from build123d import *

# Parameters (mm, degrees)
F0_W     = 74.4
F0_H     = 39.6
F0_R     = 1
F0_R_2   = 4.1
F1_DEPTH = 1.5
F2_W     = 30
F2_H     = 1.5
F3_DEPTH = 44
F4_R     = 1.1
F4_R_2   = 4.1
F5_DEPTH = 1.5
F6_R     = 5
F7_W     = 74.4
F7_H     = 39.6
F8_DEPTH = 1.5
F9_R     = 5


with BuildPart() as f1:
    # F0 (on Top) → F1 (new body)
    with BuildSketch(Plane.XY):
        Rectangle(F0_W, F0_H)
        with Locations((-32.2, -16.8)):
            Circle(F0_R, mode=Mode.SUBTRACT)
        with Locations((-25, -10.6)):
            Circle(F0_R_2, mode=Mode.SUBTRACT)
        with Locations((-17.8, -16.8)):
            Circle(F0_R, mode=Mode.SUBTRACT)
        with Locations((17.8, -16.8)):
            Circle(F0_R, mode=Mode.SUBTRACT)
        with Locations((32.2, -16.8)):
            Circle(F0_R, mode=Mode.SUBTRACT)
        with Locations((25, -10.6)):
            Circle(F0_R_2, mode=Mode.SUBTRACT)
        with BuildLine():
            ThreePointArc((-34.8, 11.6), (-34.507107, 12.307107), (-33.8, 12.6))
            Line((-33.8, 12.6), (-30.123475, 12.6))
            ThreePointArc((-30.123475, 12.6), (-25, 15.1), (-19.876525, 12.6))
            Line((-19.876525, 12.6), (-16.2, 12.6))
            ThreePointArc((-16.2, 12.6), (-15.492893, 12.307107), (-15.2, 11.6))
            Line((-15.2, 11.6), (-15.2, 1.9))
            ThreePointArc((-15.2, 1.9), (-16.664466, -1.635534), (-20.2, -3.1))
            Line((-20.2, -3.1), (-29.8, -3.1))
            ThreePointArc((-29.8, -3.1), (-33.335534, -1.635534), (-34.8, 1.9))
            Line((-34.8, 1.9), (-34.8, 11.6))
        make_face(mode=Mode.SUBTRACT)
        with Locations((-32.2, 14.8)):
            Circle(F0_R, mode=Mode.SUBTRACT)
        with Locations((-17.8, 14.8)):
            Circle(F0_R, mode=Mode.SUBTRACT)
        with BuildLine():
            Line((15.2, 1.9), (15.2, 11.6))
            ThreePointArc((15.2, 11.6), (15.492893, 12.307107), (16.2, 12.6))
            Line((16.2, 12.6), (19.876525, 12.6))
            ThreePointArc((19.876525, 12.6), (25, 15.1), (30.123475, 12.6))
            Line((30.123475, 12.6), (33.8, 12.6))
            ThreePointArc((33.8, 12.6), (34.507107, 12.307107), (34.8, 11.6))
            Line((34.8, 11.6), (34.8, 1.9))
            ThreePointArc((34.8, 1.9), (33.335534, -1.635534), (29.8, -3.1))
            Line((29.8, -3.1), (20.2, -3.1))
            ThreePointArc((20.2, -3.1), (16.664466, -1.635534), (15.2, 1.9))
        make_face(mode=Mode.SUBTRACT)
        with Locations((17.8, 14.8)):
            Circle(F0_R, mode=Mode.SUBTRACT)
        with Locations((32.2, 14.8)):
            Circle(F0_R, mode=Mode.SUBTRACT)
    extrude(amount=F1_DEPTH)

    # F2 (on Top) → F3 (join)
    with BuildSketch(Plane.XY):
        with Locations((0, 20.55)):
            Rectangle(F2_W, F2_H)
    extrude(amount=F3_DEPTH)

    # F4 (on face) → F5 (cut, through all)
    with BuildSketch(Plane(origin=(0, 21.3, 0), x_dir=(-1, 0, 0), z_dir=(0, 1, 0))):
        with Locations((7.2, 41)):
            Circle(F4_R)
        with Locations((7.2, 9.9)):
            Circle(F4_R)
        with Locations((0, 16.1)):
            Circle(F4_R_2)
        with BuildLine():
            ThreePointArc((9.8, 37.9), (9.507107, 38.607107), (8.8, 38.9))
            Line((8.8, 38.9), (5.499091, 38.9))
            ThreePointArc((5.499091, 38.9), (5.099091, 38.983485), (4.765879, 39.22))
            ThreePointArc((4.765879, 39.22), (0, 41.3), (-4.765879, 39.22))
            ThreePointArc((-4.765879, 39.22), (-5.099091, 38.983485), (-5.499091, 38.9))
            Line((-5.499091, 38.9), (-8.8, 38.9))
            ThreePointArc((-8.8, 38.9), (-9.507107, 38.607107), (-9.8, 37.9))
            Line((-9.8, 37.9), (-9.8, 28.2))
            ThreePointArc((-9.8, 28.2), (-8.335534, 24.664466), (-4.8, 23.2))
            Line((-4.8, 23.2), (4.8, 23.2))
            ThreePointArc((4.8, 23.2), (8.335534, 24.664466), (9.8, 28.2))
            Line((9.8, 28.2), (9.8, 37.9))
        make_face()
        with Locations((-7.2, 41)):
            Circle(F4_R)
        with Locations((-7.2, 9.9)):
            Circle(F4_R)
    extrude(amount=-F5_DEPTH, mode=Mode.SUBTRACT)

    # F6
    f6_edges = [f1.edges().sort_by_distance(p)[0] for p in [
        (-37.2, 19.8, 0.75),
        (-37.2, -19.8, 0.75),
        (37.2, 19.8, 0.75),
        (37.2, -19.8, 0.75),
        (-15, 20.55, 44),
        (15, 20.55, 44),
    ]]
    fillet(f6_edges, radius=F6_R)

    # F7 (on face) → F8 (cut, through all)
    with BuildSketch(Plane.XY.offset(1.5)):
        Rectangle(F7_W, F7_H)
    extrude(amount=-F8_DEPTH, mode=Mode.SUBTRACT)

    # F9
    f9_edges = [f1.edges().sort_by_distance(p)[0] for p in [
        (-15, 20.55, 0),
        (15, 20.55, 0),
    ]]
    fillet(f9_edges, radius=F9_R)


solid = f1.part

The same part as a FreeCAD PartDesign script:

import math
import FreeCAD as App
import Part
import Sketcher

V = App.Vector


def edges_at(feature, points):
    """Names of the edges that pass closest to the given points."""
    edges = feature.Shape.Edges
    near = lambda p: min(range(len(edges)), key=lambda i: edges[i].distToShape(Part.Vertex(*p))[0])
    return sorted({f"Edge{near(p) + 1}" for p in points})


def add_polygon(sketch, points):
    """Adds a closed chain of lines whose ends are joined by coincident constraints."""
    first, n = sketch.GeometryCount, len(points)
    for a, b in zip(points, points[1:] + points[:1]):
        sketch.addGeometry(Part.LineSegment(App.Vector(*a, 0), App.Vector(*b, 0)), False)
    for i in range(n):
        sketch.addConstraint(Sketcher.Constraint("Coincident", first + i, 2, first + (i + 1) % n, 1))

doc = App.newDocument("Part")
body = doc.addObject("PartDesign::Body", "Body")

# Sketch on XY plane
sketch1 = doc.addObject("Sketcher::SketchObject", "Sketch")
body.addObject(sketch1)
sketch1.AttachmentSupport = (doc.XY_Plane, [""])
sketch1.MapMode = "FlatFace"
add_polygon(sketch1, [(-37.2, 19.8), (-37.2, -19.8), (37.2, -19.8), (37.2, 19.8)])  # lines 0-3
sketch1.addGeometry(Part.Circle(V(-32.2, -16.8, 0), V(0, 0, 1), 1), False)  # 4
sketch1.addGeometry(Part.Circle(V(-17.8, -16.8, 0), V(0, 0, 1), 1), False)  # 5
sketch1.addGeometry(Part.Circle(V(-25, -10.6, 0), V(0, 0, 1), 4.1), False)  # 6
sketch1.addGeometry(Part.Circle(V(17.8, -16.8, 0), V(0, 0, 1), 1), False)  # 7
sketch1.addGeometry(Part.Circle(V(32.2, -16.8, 0), V(0, 0, 1), 1), False)  # 8
sketch1.addGeometry(Part.Circle(V(25, -10.6, 0), V(0, 0, 1), 4.1), False)  # 9
sketch1.addGeometry(Part.LineSegment(V(-34.8, 1.9, 0), V(-34.8, 11.6, 0)), False)  # 10
sketch1.addGeometry(Part.ArcOfCircle(Part.Circle(V(-33.800001, 11.600001, 0), V(0, 0, 1), 0.999999), math.radians(89.999957), math.radians(180.000043)), False)  # 11
sketch1.addGeometry(Part.LineSegment(V(-33.8, 12.6, 0), V(-30.123475, 12.6, 0)), False)  # 12
sketch1.addGeometry(Part.ArcOfCircle(Part.Circle(V(-25, 8.600001, 0), V(0, 0, 1), 6.499999), math.radians(37.979869), math.radians(142.020131)), False)  # 13
sketch1.addGeometry(Part.LineSegment(V(-19.876525, 12.6, 0), V(-16.2, 12.6, 0)), False)  # 14
sketch1.addGeometry(Part.ArcOfCircle(Part.Circle(V(-16.199999, 11.600001, 0), V(0, 0, 1), 0.999999), math.radians(-0.000043), math.radians(90.000043)), False)  # 15
sketch1.addGeometry(Part.LineSegment(V(-15.2, 11.6, 0), V(-15.2, 1.9, 0)), False)  # 16
sketch1.addGeometry(Part.ArcOfCircle(Part.Circle(V(-20.2, 1.9, 0), V(0, 0, 1), 5), math.radians(-90.000004), math.radians(0.000004)), False)  # 17
sketch1.addGeometry(Part.LineSegment(V(-20.2, -3.1, 0), V(-29.8, -3.1, 0)), False)  # 18
sketch1.addGeometry(Part.ArcOfCircle(Part.Circle(V(-29.8, 1.9, 0), V(0, 0, 1), 5), math.radians(179.999996), math.radians(270.000004)), False)  # 19
sketch1.addGeometry(Part.Circle(V(-32.2, 14.8, 0), V(0, 0, 1), 1), False)  # 20
sketch1.addGeometry(Part.Circle(V(-17.8, 14.8, 0), V(0, 0, 1), 1), False)  # 21
sketch1.addGeometry(Part.ArcOfCircle(Part.Circle(V(20.2, 1.9, 0), V(0, 0, 1), 5), math.radians(179.999996), math.radians(270.000004)), False)  # 22
sketch1.addGeometry(Part.LineSegment(V(15.2, 1.9, 0), V(15.2, 11.6, 0)), False)  # 23
sketch1.addGeometry(Part.ArcOfCircle(Part.Circle(V(16.199999, 11.600001, 0), V(0, 0, 1), 0.999999), math.radians(89.999957), math.radians(180.000043)), False)  # 24
sketch1.addGeometry(Part.LineSegment(V(16.2, 12.6, 0), V(19.876525, 12.6, 0)), False)  # 25
sketch1.addGeometry(Part.ArcOfCircle(Part.Circle(V(25, 8.600001, 0), V(0, 0, 1), 6.499999), math.radians(37.979869), math.radians(142.020131)), False)  # 26
sketch1.addGeometry(Part.LineSegment(V(30.123475, 12.6, 0), V(33.8, 12.6, 0)), False)  # 27
sketch1.addGeometry(Part.ArcOfCircle(Part.Circle(V(33.800001, 11.600001, 0), V(0, 0, 1), 0.999999), math.radians(-0.000043), math.radians(90.000043)), False)  # 28
sketch1.addGeometry(Part.LineSegment(V(34.8, 11.6, 0), V(34.8, 1.9, 0)), False)  # 29
sketch1.addGeometry(Part.ArcOfCircle(Part.Circle(V(29.8, 1.9, 0), V(0, 0, 1), 5), math.radians(-90.000004), math.radians(0.000004)), False)  # 30
sketch1.addGeometry(Part.LineSegment(V(29.8, -3.1, 0), V(20.2, -3.1, 0)), False)  # 31
sketch1.addGeometry(Part.Circle(V(17.8, 14.8, 0), V(0, 0, 1), 1), False)  # 32
sketch1.addGeometry(Part.Circle(V(32.2, 14.8, 0), V(0, 0, 1), 1), False)  # 33
sketch1.addConstraint([
    Sketcher.Constraint("Tangent", 10, 2, 11, 2),
    Sketcher.Constraint("Tangent", 11, 1, 12, 1),
    Sketcher.Constraint("Coincident", 12, 2, 13, 2),
    Sketcher.Constraint("Coincident", 13, 1, 14, 1),
    Sketcher.Constraint("Tangent", 14, 2, 15, 2),
    Sketcher.Constraint("Tangent", 15, 1, 16, 1),
    Sketcher.Constraint("Tangent", 16, 2, 17, 2),
    Sketcher.Constraint("Tangent", 17, 1, 18, 1),
    Sketcher.Constraint("Tangent", 18, 2, 19, 2),
    Sketcher.Constraint("Tangent", 19, 1, 10, 1),
    Sketcher.Constraint("Tangent", 22, 1, 23, 1),
    Sketcher.Constraint("Tangent", 23, 2, 24, 2),
    Sketcher.Constraint("Tangent", 24, 1, 25, 1),
    Sketcher.Constraint("Coincident", 25, 2, 26, 2),
    Sketcher.Constraint("Coincident", 26, 1, 27, 1),
    Sketcher.Constraint("Tangent", 27, 2, 28, 2),
    Sketcher.Constraint("Tangent", 28, 1, 29, 1),
    Sketcher.Constraint("Tangent", 29, 2, 30, 2),
    Sketcher.Constraint("Tangent", 30, 1, 31, 1),
    Sketcher.Constraint("Tangent", 31, 2, 22, 2),
    Sketcher.Constraint("Vertical", 0),
    Sketcher.Constraint("Horizontal", 1),
    Sketcher.Constraint("Vertical", 2),
    Sketcher.Constraint("Horizontal", 3),
    Sketcher.Constraint("Vertical", 10),
    Sketcher.Constraint("Horizontal", 12),
    Sketcher.Constraint("Horizontal", 14),
    Sketcher.Constraint("Vertical", 16),
    Sketcher.Constraint("Horizontal", 18),
    Sketcher.Constraint("Vertical", 23),
    Sketcher.Constraint("Horizontal", 25),
    Sketcher.Constraint("Horizontal", 27),
    Sketcher.Constraint("Vertical", 29),
    Sketcher.Constraint("Horizontal", 31),
    Sketcher.Constraint("Equal", 4, 5),
    Sketcher.Constraint("Equal", 5, 7),
    Sketcher.Constraint("Equal", 7, 8),
    Sketcher.Constraint("Equal", 6, 9),
    Sketcher.Constraint("Equal", 8, 11),
    Sketcher.Constraint("Equal", 11, 15),
    Sketcher.Constraint("Equal", 17, 19),
    Sketcher.Constraint("Equal", 15, 20),
    Sketcher.Constraint("Equal", 20, 21),
    Sketcher.Constraint("Equal", 19, 22),
    Sketcher.Constraint("Equal", 21, 24),
    Sketcher.Constraint("Equal", 13, 26),
    Sketcher.Constraint("Equal", 24, 28),
    Sketcher.Constraint("Equal", 22, 30),
    Sketcher.Constraint("Equal", 28, 32),
    Sketcher.Constraint("Equal", 32, 33),
    Sketcher.Constraint("Symmetric", 0, 2, 2, 2, -1, 1),
    Sketcher.Constraint("Symmetric", 5, 3, 7, 3, -2),
    Sketcher.Constraint("Symmetric", 4, 3, 8, 3, -2),
    Sketcher.Constraint("Symmetric", 6, 3, 9, 3, -2),
    Sketcher.Constraint("Symmetric", 17, 3, 22, 3, -2),
    Sketcher.Constraint("Symmetric", 13, 3, 26, 3, -2),
    Sketcher.Constraint("Symmetric", 11, 3, 28, 3, -2),
    Sketcher.Constraint("Symmetric", 21, 3, 32, 3, -2),
    Sketcher.Constraint("Symmetric", 20, 3, 33, 3, -2),
    Sketcher.Constraint("Horizontal", 4, 3, 5, 3),
    Sketcher.Constraint("Horizontal", 11, 3, 15, 3),
    Sketcher.Constraint("Horizontal", 20, 3, 21, 3),
    Sketcher.Constraint("Horizontal", 15, 3, 24, 3),
    Sketcher.Constraint("Vertical", 6, 3, 13, 3),
    Sketcher.Constraint("Vertical", 4, 3, 20, 3),
    Sketcher.Constraint("Vertical", 5, 3, 21, 3),
    Sketcher.Constraint("Equal", 12, 14),
    Sketcher.Constraint("Diameter", 4, 2.0),
    Sketcher.Constraint("Radius", 17, 5.0),
    Sketcher.Constraint("Diameter", 6, 8.2),
    Sketcher.Constraint("Radius", 13, 6.499999),
    Sketcher.Constraint("DistanceX", 1, 1, 1, 2, 74.4),
    Sketcher.Constraint("DistanceX", 18, 2, 18, 1, 9.6),
    Sketcher.Constraint("DistanceY", 0, 2, 0, 1, 39.6),
    Sketcher.Constraint("DistanceY", 10, 1, 10, 2, 9.7),
    Sketcher.Constraint("DistanceX", 6, 3, -1, 1, 25.0),
    Sketcher.Constraint("DistanceX", 4, 3, 7, 3, 50.0),
    Sketcher.Constraint("DistanceX", 11, 3, 5, 3, 16.000001),
    Sketcher.Constraint("DistanceY", 13, 3, 11, 3, 3.0),
    Sketcher.Constraint("DistanceY", 0, 2, 4, 3, 3.0),
    Sketcher.Constraint("DistanceY", 33, 3, 2, 2, 5.0),
    Sketcher.Constraint("DistanceY", 6, 3, -1, 1, 10.6),
    Sketcher.Constraint("DistanceY", -1, 1, 11, 3, 11.600001),
])
pad1 = doc.addObject("PartDesign::Pad", "Pad")
body.addObject(pad1)
pad1.Profile = sketch1
pad1.Length = 1.5

# Sketch on XY plane
sketch2 = doc.addObject("Sketcher::SketchObject", "Sketch001")
body.addObject(sketch2)
sketch2.AttachmentSupport = (doc.XY_Plane, [""])
sketch2.MapMode = "FlatFace"
add_polygon(sketch2, [(-15, 21.3), (-15, 19.8), (15, 19.8), (15, 21.3)])  # lines 0-3
sketch2.addConstraint([
    Sketcher.Constraint("Vertical", 0),
    Sketcher.Constraint("Horizontal", 1),
    Sketcher.Constraint("Vertical", 2),
    Sketcher.Constraint("Horizontal", 3),
    Sketcher.Constraint("DistanceX", 1, 1, 1, 2, 30.0),
    Sketcher.Constraint("DistanceY", 0, 2, 0, 1, 1.5),
    Sketcher.Constraint("DistanceX", 0, 2, -1, 1, 15.0),
    Sketcher.Constraint("DistanceY", -1, 1, 0, 2, 19.8),
])
pad2 = doc.addObject("PartDesign::Pad", "Pad001")
body.addObject(pad2)
pad2.Profile = sketch2
pad2.Length = 44

# Sketch on XZ plane
sketch3 = doc.addObject("Sketcher::SketchObject", "Sketch002")
body.addObject(sketch3)
sketch3.AttachmentSupport = (doc.XZ_Plane, [""])
sketch3.MapMode = "FlatFace"
sketch3.AttachmentOffset = App.Placement(V(0, 0, -21.3), App.Rotation())
sketch3.addGeometry([
    Part.Circle(V(-7.2, 41, 0), V(0, 0, 1), 1.1),  # 0
    Part.Circle(V(-7.2, 9.9, 0), V(0, 0, 1), 1.1),  # 1
    Part.Circle(V(0, 16.1, 0), V(0, 0, 1), 4.1),  # 2
    Part.ArcOfCircle(Part.Circle(V(-8.800001, 37.900001, 0), V(0, 0, 1), 0.999999), math.radians(89.999957), math.radians(180.000043)),  # 3
    Part.LineSegment(V(-8.8, 38.9, 0), V(-5.499091, 38.9, 0)),  # 4
    Part.ArcOfCircle(Part.Circle(V(-5.499092, 39.900001, 0), V(0, 0, 1), 1.000001), math.radians(-89.999971), math.radians(-42.843666)),  # 5
    Part.ArcOfCircle(Part.Circle(V(0, 34.799999, 0), V(0, 0, 1), 6.500001), math.radians(42.843645), math.radians(137.156355)),  # 6
    Part.ArcOfCircle(Part.Circle(V(5.499092, 39.900001, 0), V(0, 0, 1), 1.000001), math.radians(-137.156334), math.radians(-90.000029)),  # 7
    Part.LineSegment(V(5.499091, 38.9, 0), V(8.8, 38.9, 0)),  # 8
    Part.ArcOfCircle(Part.Circle(V(8.800001, 37.900001, 0), V(0, 0, 1), 0.999999), math.radians(-0.000043), math.radians(90.000043)),  # 9
    Part.LineSegment(V(9.8, 37.9, 0), V(9.8, 28.2, 0)),  # 10
    Part.ArcOfCircle(Part.Circle(V(4.8, 28.2, 0), V(0, 0, 1), 5), math.radians(-90.000004), math.radians(0.000004)),  # 11
    Part.LineSegment(V(4.8, 23.2, 0), V(-4.8, 23.2, 0)),  # 12
    Part.ArcOfCircle(Part.Circle(V(-4.8, 28.2, 0), V(0, 0, 1), 5), math.radians(179.999996), math.radians(270.000004)),  # 13
    Part.LineSegment(V(-9.8, 28.2, 0), V(-9.8, 37.9, 0)),  # 14
    Part.Circle(V(7.2, 41, 0), V(0, 0, 1), 1.1),  # 15
    Part.Circle(V(7.2, 9.9, 0), V(0, 0, 1), 1.1),  # 16
], False)
sketch3.addConstraint([
    Sketcher.Constraint("Tangent", 3, 1, 4, 1),
    Sketcher.Constraint("Tangent", 4, 2, 5, 1),
    Sketcher.Constraint("Tangent", 5, 2, 6, 2),
    Sketcher.Constraint("Tangent", 6, 1, 7, 1),
    Sketcher.Constraint("Tangent", 7, 2, 8, 1),
    Sketcher.Constraint("Tangent", 8, 2, 9, 2),
    Sketcher.Constraint("Tangent", 9, 1, 10, 1),
    Sketcher.Constraint("Tangent", 10, 2, 11, 2),
    Sketcher.Constraint("Tangent", 11, 1, 12, 1),
    Sketcher.Constraint("Tangent", 12, 2, 13, 2),
    Sketcher.Constraint("Tangent", 13, 1, 14, 1),
    Sketcher.Constraint("Tangent", 14, 2, 3, 2),
    Sketcher.Constraint("Horizontal", 4),
    Sketcher.Constraint("Horizontal", 8),
    Sketcher.Constraint("Vertical", 10),
    Sketcher.Constraint("Horizontal", 12),
    Sketcher.Constraint("Vertical", 14),
    Sketcher.Constraint("Equal", 0, 1),
    Sketcher.Constraint("Equal", 3, 5),
    Sketcher.Constraint("Equal", 5, 7),
    Sketcher.Constraint("Equal", 7, 9),
    Sketcher.Constraint("Equal", 11, 13),
    Sketcher.Constraint("Equal", 1, 15),
    Sketcher.Constraint("Equal", 15, 16),
    Sketcher.Constraint("Symmetric", 5, 3, 7, 3, -2),
    Sketcher.Constraint("Symmetric", 0, 3, 15, 3, -2),
    Sketcher.Constraint("Symmetric", 1, 3, 16, 3, -2),
    Sketcher.Constraint("PointOnObject", 2, 3, -2),
    Sketcher.Constraint("Vertical", 0, 3, 1, 3),
    Sketcher.Constraint("Equal", 4, 8),
    Sketcher.Constraint("Radius", 3, 0.999999),
    Sketcher.Constraint("Radius", 11, 5.0),
    Sketcher.Constraint("Diameter", 0, 2.2),
    Sketcher.Constraint("Diameter", 2, 8.2),
    Sketcher.Constraint("Radius", 6, 6.500001),
    Sketcher.Constraint("DistanceX", 12, 2, 12, 1, 9.6),
    Sketcher.Constraint("DistanceY", 10, 2, 10, 1, 9.7),
    Sketcher.Constraint("DistanceY", -1, 1, 0, 3, 41.0),
    Sketcher.Constraint("DistanceY", 1, 3, 3, 3, 28.000001),
    Sketcher.Constraint("DistanceX", 0, 3, 9, 3, 16.000001),
    Sketcher.Constraint("DistanceY", -1, 1, 1, 3, 9.9),
    Sketcher.Constraint("DistanceY", -1, 1, 2, 3, 16.1),
    Sketcher.Constraint("DistanceY", -1, 1, 6, 3, 34.799999),
])
pocket1 = doc.addObject("PartDesign::Pocket", "Pocket")
body.addObject(pocket1)
pocket1.Profile = sketch3
pocket1.Type = "ThroughAll"
pocket1.Reversed = True
doc.recompute()

fillet = doc.addObject("PartDesign::Fillet", "Fillet")
body.addObject(fillet)
fillet.Base = (pocket1, edges_at(pocket1, [
    (-37.2, 19.8, 0.75),
    (-37.2, -19.8, 0.75),
    (37.2, 19.8, 0.75),
    (37.2, -19.8, 0.75),
    (-15, 20.55, 44),
    (15, 20.55, 44),
]))
fillet.Radius = 5

# Sketch on XY plane
sketch4 = doc.addObject("Sketcher::SketchObject", "Sketch003")
body.addObject(sketch4)
sketch4.AttachmentSupport = (doc.XY_Plane, [""])
sketch4.MapMode = "FlatFace"
sketch4.AttachmentOffset = App.Placement(V(0, 0, 1.5), App.Rotation())
add_polygon(sketch4, [(-37.2, 19.8), (-37.2, -19.8), (37.2, -19.8), (37.2, 19.8)])  # lines 0-3
sketch4.addConstraint([
    Sketcher.Constraint("Vertical", 0),
    Sketcher.Constraint("Horizontal", 1),
    Sketcher.Constraint("Vertical", 2),
    Sketcher.Constraint("Horizontal", 3),
    Sketcher.Constraint("Symmetric", 0, 2, 2, 2, -1, 1),
    Sketcher.Constraint("DistanceX", 1, 1, 1, 2, 74.4),
    Sketcher.Constraint("DistanceY", 0, 2, 0, 1, 39.6),
])
pocket2 = doc.addObject("PartDesign::Pocket", "Pocket001")
body.addObject(pocket2)
pocket2.Profile = sketch4
pocket2.Type = "ThroughAll"
doc.recompute()

fillet2 = doc.addObject("PartDesign::Fillet", "Fillet001")
body.addObject(fillet2)
fillet2.Base = (pocket2, edges_at(pocket2, [(-15, 20.55, 0), (15, 20.55, 0)]))
fillet2.Radius = 5

doc.recompute()
